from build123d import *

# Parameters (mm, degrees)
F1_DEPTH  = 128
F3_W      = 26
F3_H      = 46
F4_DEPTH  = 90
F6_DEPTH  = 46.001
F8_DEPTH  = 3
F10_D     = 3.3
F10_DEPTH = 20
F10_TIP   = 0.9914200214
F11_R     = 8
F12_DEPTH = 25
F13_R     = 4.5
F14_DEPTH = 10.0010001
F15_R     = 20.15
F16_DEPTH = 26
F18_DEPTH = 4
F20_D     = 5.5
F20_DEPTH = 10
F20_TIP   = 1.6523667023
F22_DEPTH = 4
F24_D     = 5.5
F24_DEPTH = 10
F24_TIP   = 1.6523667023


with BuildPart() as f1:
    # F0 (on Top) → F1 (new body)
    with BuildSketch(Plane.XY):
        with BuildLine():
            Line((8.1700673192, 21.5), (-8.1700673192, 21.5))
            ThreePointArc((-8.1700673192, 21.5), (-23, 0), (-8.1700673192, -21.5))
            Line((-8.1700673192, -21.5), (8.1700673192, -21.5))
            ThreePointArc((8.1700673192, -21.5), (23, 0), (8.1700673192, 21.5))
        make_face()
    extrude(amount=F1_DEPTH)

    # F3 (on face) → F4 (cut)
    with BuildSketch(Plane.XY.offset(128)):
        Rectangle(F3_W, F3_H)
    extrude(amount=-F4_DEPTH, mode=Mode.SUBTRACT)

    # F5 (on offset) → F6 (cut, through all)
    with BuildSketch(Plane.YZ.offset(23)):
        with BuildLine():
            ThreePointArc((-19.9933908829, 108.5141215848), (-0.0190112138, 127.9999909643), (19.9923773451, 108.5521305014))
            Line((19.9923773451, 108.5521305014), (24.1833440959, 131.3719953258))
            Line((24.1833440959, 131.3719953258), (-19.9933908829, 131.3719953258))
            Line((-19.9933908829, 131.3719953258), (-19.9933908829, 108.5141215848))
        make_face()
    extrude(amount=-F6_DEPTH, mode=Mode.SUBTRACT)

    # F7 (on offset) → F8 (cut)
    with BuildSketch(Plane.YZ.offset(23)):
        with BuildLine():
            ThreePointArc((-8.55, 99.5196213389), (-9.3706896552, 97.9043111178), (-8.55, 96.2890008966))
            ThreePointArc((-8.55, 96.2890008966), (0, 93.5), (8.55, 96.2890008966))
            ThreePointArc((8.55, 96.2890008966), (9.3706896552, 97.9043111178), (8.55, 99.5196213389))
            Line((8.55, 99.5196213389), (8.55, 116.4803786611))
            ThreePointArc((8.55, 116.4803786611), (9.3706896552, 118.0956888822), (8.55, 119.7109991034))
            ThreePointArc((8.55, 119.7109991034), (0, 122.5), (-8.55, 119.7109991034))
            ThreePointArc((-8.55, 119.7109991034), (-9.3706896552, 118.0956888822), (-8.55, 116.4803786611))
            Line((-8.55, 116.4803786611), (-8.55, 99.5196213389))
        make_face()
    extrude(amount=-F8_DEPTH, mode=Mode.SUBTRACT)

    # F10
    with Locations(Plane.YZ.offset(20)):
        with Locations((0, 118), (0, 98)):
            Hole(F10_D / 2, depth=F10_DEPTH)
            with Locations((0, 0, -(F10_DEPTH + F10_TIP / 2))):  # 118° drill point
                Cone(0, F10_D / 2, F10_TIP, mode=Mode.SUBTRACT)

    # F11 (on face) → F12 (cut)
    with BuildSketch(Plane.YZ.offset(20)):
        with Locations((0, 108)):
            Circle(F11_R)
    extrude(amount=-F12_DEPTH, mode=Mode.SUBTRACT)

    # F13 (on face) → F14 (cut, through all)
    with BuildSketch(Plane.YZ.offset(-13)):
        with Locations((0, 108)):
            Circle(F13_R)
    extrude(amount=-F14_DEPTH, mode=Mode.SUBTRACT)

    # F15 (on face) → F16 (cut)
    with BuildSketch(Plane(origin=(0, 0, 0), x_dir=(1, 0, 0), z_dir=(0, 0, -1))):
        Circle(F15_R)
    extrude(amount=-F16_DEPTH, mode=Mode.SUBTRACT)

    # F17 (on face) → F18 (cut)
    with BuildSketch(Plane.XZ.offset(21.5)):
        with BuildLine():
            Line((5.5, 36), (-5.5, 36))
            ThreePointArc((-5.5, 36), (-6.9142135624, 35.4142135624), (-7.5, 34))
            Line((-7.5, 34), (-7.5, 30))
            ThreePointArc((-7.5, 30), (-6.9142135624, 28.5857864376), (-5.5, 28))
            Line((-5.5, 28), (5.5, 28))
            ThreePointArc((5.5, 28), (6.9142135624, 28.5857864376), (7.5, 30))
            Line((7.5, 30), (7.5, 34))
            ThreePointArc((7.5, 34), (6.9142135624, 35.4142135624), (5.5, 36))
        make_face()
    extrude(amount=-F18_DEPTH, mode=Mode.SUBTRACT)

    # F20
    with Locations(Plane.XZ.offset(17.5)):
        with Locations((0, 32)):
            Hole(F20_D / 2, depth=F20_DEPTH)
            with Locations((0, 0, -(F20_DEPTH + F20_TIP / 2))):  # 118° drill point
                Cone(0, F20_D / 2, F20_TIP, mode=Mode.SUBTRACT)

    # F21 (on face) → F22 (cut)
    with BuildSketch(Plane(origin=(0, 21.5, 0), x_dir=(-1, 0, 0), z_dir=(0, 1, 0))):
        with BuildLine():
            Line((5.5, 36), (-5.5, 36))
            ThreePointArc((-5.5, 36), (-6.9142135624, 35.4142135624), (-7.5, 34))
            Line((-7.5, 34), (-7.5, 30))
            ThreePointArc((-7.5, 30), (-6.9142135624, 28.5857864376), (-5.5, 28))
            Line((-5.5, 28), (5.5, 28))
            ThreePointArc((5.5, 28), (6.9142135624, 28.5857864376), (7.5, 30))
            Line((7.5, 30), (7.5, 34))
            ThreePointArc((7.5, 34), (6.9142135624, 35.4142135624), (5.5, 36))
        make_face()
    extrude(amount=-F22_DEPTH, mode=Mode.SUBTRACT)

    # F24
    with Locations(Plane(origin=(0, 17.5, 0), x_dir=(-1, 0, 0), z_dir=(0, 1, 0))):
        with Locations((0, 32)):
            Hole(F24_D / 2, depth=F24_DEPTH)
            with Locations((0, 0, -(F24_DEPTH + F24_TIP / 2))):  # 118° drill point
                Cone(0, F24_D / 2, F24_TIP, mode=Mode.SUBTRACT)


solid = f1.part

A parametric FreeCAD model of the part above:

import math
import FreeCAD as App
import Part
import Sketcher
from FreeCAD import Vector

doc = App.newDocument("Part")
body = doc.addObject("PartDesign::Body", "Body")

# Sketch on XY plane
sketch1 = doc.addObject("Sketcher::SketchObject", "Sketch")
body.addObject(sketch1)
sketch1.AttachmentSupport = (doc.XY_Plane, [""])
sketch1.MapMode = "FlatFace"
sketch1.addGeometry([
    Part.LineSegment(Vector(8, 22, 0), Vector(-8, 22, 0)),
    Part.ArcOfCircle(Part.Circle(Vector(0, 0, 0), Vector(0, 0, 1), 23), math.radians(111), math.radians(249)),
    Part.LineSegment(Vector(-8, -22, 0), Vector(8, -22, 0)),
    Part.ArcOfCircle(Part.Circle(Vector(0, 0, 0), Vector(0, 0, 1), 23), math.radians(-69), math.radians(69)),
], False)
sketch1.addConstraint([
    Sketcher.Constraint("Coincident", 0, 2, 1, 1),
    Sketcher.Constraint("Coincident", 1, 2, 2, 1),
    Sketcher.Constraint("Coincident", 2, 2, 3, 1),
    Sketcher.Constraint("Coincident", 3, 2, 0, 1),
    Sketcher.Constraint("Horizontal", 0),
    Sketcher.Constraint("Horizontal", 2),
    Sketcher.Constraint("Coincident", 1, 3, -1, 1),
    Sketcher.Constraint("Coincident", 3, 3, -1, 1),
    Sketcher.Constraint("Equal", 1, 3),
    Sketcher.Constraint("Vertical", 0, 2, 1, 2),
    Sketcher.Constraint("Radius", 1, 23.0),
    Sketcher.Constraint("DistanceY", 1, 2, 0, 2, 43.0),
])
pad1 = doc.addObject("PartDesign::Pad", "Pad")
body.addObject(pad1)
pad1.Profile = sketch1
pad1.Length = 128

# Sketch on XY plane
sketch2 = doc.addObject("Sketcher::SketchObject", "Sketch001")
body.addObject(sketch2)
sketch2.AttachmentSupport = (doc.XY_Plane, [""])
sketch2.MapMode = "FlatFace"
sketch2.AttachmentOffset = App.Placement(Vector(0, 0, 128), App.Rotation())
sketch2.addGeometry([
    Part.LineSegment(Vector(-13, 23, 0), Vector(-13, -23, 0)),
    Part.LineSegment(Vector(-13, -23, 0), Vector(13, -23, 0)),
    Part.LineSegment(Vector(13, -23, 0), Vector(13, 23, 0)),
    Part.LineSegment(Vector(13, 23, 0), Vector(-13, 23, 0)),
], False)
sketch2.addConstraint([
    Sketcher.Constraint("Coincident", 0, 2, 1, 1),
    Sketcher.Constraint("Coincident", 1, 2, 2, 1),
    Sketcher.Constraint("Coincident", 2, 2, 3, 1),
    Sketcher.Constraint("Coincident", 3, 2, 0, 1),
    Sketcher.Constraint("Vertical", 0),
    Sketcher.Constraint("Horizontal", 1),
    Sketcher.Constraint("Vertical", 2),
    Sketcher.Constraint("Horizontal", 3),
    Sketcher.Constraint("Symmetric", 0, 2, 2, 2, -1, 1),
    Sketcher.Constraint("DistanceX", 1, 1, 1, 2, 26.0),
    Sketcher.Constraint("DistanceY", 0, 2, 0, 1, 46.0),
])
pocket1 = doc.addObject("PartDesign::Pocket", "Pocket")
body.addObject(pocket1)
pocket1.Profile = sketch2
pocket1.Length = 90

# Sketch on YZ plane
sketch3 = doc.addObject("Sketcher::SketchObject", "Sketch002")
body.addObject(sketch3)
sketch3.AttachmentSupport = (doc.YZ_Plane, [""])
sketch3.MapMode = "FlatFace"
sketch3.AttachmentOffset = App.Placement(Vector(0, 0, 23), App.Rotation())
sketch3.addGeometry([
    Part.ArcOfCircle(Part.Circle(Vector(0, 108, 0), Vector(0, 0, 1), 20), math.radians(2), math.radians(179)),
    Part.LineSegment(Vector(20, 109, 0), Vector(24, 131, 0)),
    Part.LineSegment(Vector(24, 131, 0), Vector(-20, 131, 0)),
    Part.LineSegment(Vector(-20, 131, 0), Vector(-20, 109, 0)),
], False)
sketch3.addConstraint([
    Sketcher.Constraint("Coincident", 0, 1, 1, 1),
    Sketcher.Constraint("Coincident", 1, 2, 2, 1),
    Sketcher.Constraint("Coincident", 2, 2, 3, 1),
    Sketcher.Constraint("Coincident", 3, 2, 0, 2),
    Sketcher.Constraint("Horizontal", 2),
    Sketcher.Constraint("Vertical", 3),
    Sketcher.Constraint("PointOnObject", 0, 3, -2),
    Sketcher.Constraint("Radius", 0, 20.0),
    Sketcher.Constraint("DistanceY", -1, 1, 0, 3, 108.0),
    Sketcher.Constraint("DistanceX", 2, 2, 2, 1, 44.176735),
    Sketcher.Constraint("DistanceY", 3, 2, 3, 1, 22.857874),
    Sketcher.Constraint("DistanceY", -1, 1, 0, 1, 108.552131),
    Sketcher.Constraint("DistanceX", 2, 2, -1, 1, 19.993391),
])
pocket2 = doc.addObject("PartDesign::Pocket", "Pocket001")
body.addObject(pocket2)
pocket2.Profile = sketch3
pocket2.Type = "ThroughAll"

# Sketch on YZ plane
sketch4 = doc.addObject("Sketcher::SketchObject", "Sketch003")
body.addObject(sketch4)
sketch4.AttachmentSupport = (doc.YZ_Plane, [""])
sketch4.MapMode = "FlatFace"
sketch4.AttachmentOffset = App.Placement(Vector(0, 0, 23), App.Rotation())
sketch4.addGeometry([
    Part.ArcOfCircle(Part.Circle(Vector(-7.4, 97.9, 0), Vector(0, 0, 1), 2), math.radians(126), math.radians(234)),  # 0
    Part.ArcOfCircle(Part.Circle(Vector(0, 108, 0), Vector(0, 0, 1), 14.5), math.radians(-126), math.radians(-54)),  # 1
    Part.ArcOfCircle(Part.Circle(Vector(7.4, 97.9, 0), Vector(0, 0, 1), 2), math.radians(-54), math.radians(54)),  # 2
    Part.LineSegment(Vector(8.6, 99.5, 0), Vector(8.6, 116.5, 0)),  # 3
    Part.ArcOfCircle(Part.Circle(Vector(7.4, 118.1, 0), Vector(0, 0, 1), 2), math.radians(-54), math.radians(54)),  # 4
    Part.ArcOfCircle(Part.Circle(Vector(0, 108, 0), Vector(0, 0, 1), 14.5), math.radians(54), math.radians(126)),  # 5
    Part.ArcOfCircle(Part.Circle(Vector(-7.4, 118.1, 0), Vector(0, 0, 1), 2), math.radians(126), math.radians(234)),  # 6
    Part.LineSegment(Vector(-8.6, 116.5, 0), Vector(-8.6, 99.5, 0)),  # 7
], False)
sketch4.addConstraint([
    Sketcher.Constraint("Tangent", 0, 2, 1, 1),
    Sketcher.Constraint("Tangent", 1, 2, 2, 1),
    Sketcher.Constraint("Coincident", 2, 2, 3, 1),
    Sketcher.Constraint("Coincident", 3, 2, 4, 1),
    Sketcher.Constraint("Tangent", 4, 2, 5, 1),
    Sketcher.Constraint("Tangent", 5, 2, 6, 1),
    Sketcher.Constraint("Coincident", 6, 2, 7, 1),
    Sketcher.Constraint("Coincident", 7, 2, 0, 1),
    Sketcher.Constraint("Vertical", 3),
    Sketcher.Constraint("Vertical", 7),
    Sketcher.Constraint("Coincident", 5, 3, 1, 3),
    Sketcher.Constraint("Equal", 0, 2),
    Sketcher.Constraint("Equal", 2, 4),
    Sketcher.Constraint("Equal", 1, 5),
    Sketcher.Constraint("Equal", 4, 6),
    Sketcher.Constraint("Symmetric", 0, 3, 2, 3, -2),
    Sketcher.Constraint("Symmetric", 3, 2, 6, 2, -2),
    Sketcher.Constraint("Vertical", 2, 3, 4, 3),
    Sketcher.Constraint("Vertical", 1, 2, 2, 2),
    Sketcher.Constraint("Radius", 0, 2.0),
    Sketcher.Constraint("Radius", 1, 14.5),
    Sketcher.Constraint("DistanceY", -1, 1, 1, 3, 108.0),
    Sketcher.Constraint("DistanceX", 0, 2, 1, 2, 17.1),
])
pocket3 = doc.addObject("PartDesign::Pocket", "Pocket002")
body.addObject(pocket3)
pocket3.Profile = sketch4
pocket3.Length = 3

# Sketch on YZ plane
sketch5 = doc.addObject("Sketcher::SketchObject", "Sketch004")
body.addObject(sketch5)
sketch5.AttachmentSupport = (doc.YZ_Plane, [""])
sketch5.MapMode = "FlatFace"
sketch5.AttachmentOffset = App.Placement(Vector(0, 0, 20), App.Rotation())
sketch5.addGeometry([
    Part.Circle(Vector(0, 118, 0), Vector(0, 0, 1), 1.6),
    Part.Circle(Vector(0, 98, 0), Vector(0, 0, 1), 1.6),
], False)
sketch5.addConstraint([
    Sketcher.Constraint("Equal", 0, 1),
    Sketcher.Constraint("PointOnObject", 0, 3, -2),
    Sketcher.Constraint("PointOnObject", 1, 3, -2),
    Sketcher.Constraint("Diameter", 0, 3.3),
    Sketcher.Constraint("DistanceY", -1, 1, 0, 3, 118.0),
    Sketcher.Constraint("DistanceY", -1, 1, 1, 3, 98.0),
])
doc.recompute()
hole = doc.addObject("PartDesign::Hole", "Hole")
body.addObject(hole)
hole.Profile = sketch5
hole.ThreadType = "None"
hole.Diameter = 3.3
hole.DepthType = "Dimension"
hole.Depth = 20
hole.DrillPoint = "Angled"
hole.DrillPointAngle = 118

# Sketch on YZ plane
sketch6 = doc.addObject("Sketcher::SketchObject", "Sketch005")
body.addObject(sketch6)
sketch6.AttachmentSupport = (doc.YZ_Plane, [""])
sketch6.MapMode = "FlatFace"
sketch6.AttachmentOffset = App.Placement(Vector(0, 0, 20), App.Rotation())
sketch6.addGeometry(Part.Circle(Vector(0, 108, 0), Vector(0, 0, 1), 8), False)
sketch6.addConstraint([
    Sketcher.Constraint("PointOnObject", 0, 3, -2),
    Sketcher.Constraint("Diameter", 0, 16.0),
    Sketcher.Constraint("DistanceY", -1, 1, 0, 3, 108.0),
])
pocket4 = doc.addObject("PartDesign::Pocket", "Pocket003")
body.addObject(pocket4)
pocket4.Profile = sketch6
pocket4.Length = 25

# Sketch on YZ plane
sketch7 = doc.addObject("Sketcher::SketchObject", "Sketch006")
body.addObject(sketch7)
sketch7.AttachmentSupport = (doc.YZ_Plane, [""])
sketch7.MapMode = "FlatFace"
sketch7.AttachmentOffset = App.Placement(Vector(0, 0, -13), App.Rotation())
sketch7.addGeometry(Part.Circle(Vector(0, 108, 0), Vector(0, 0, 1), 4.5), False)
sketch7.addConstraint([
    Sketcher.Constraint("PointOnObject", 0, 3, -2),
    Sketcher.Constraint("Diameter", 0, 9.0),
    Sketcher.Constraint("DistanceY", -1, 1, 0, 3, 108.0),
])
pocket5 = doc.addObject("PartDesign::Pocket", "Pocket004")
body.addObject(pocket5)
pocket5.Profile = sketch7
pocket5.Type = "ThroughAll"

# Sketch on XY plane
sketch8 = doc.addObject("Sketcher::SketchObject", "Sketch007")
body.addObject(sketch8)
sketch8.AttachmentSupport = (doc.XY_Plane, [""])
sketch8.MapMode = "FlatFace"
sketch8.addGeometry(Part.Circle(Vector(0, 0, 0), Vector(0, 0, 1), 20), False)
sketch8.addConstraint([
    Sketcher.Constraint("Coincident", 0, 3, -1, 1),
    Sketcher.Constraint("Diameter", 0, 40.3),
])
pocket6 = doc.addObject("PartDesign::Pocket", "Pocket005")
body.addObject(pocket6)
pocket6.Profile = sketch8
pocket6.Length = 26
pocket6.Reversed = True

# Sketch on XZ plane
sketch9 = doc.addObject("Sketcher::SketchObject", "Sketch008")
body.addObject(sketch9)
sketch9.AttachmentSupport = (doc.XZ_Plane, [""])
sketch9.MapMode = "FlatFace"
sketch9.AttachmentOffset = App.Placement(Vector(0, 0, 21.5), App.Rotation())
sketch9.addGeometry([
    Part.LineSegment(Vector(5.5, 36, 0), Vector(-5.5, 36, 0)),  # 0
    Part.ArcOfCircle(Part.Circle(Vector(-5.5, 34, 0), Vector(0, 0, 1), 2), math.radians(90), math.radians(180)),  # 1
    Part.LineSegment(Vector(-7.5, 34, 0), Vector(-7.5, 30, 0)),  # 2
    Part.ArcOfCircle(Part.Circle(Vector(-5.5, 30, 0), Vector(0, 0, 1), 2), math.radians(180), math.radians(270)),  # 3
    Part.LineSegment(Vector(-5.5, 28, 0), Vector(5.5, 28, 0)),  # 4
    Part.ArcOfCircle(Part.Circle(Vector(5.5, 30, 0), Vector(0, 0, 1), 2), math.radians(-90), math.radians(0)),  # 5
    Part.LineSegment(Vector(7.5, 30, 0), Vector(7.5, 34, 0)),  # 6
    Part.ArcOfCircle(Part.Circle(Vector(5.5, 34, 0), Vector(0, 0, 1), 2), math.radians(0), math.radians(90)),  # 7
], False)
sketch9.addConstraint([
    Sketcher.Constraint("Tangent", 0, 2, 1, 1),
    Sketcher.Constraint("Tangent", 1, 2, 2, 1),
    Sketcher.Constraint("Tangent", 2, 2, 3, 1),
    Sketcher.Constraint("Tangent", 3, 2, 4, 1),
    Sketcher.Constraint("Tangent", 4, 2, 5, 1),
    Sketcher.Constraint("Tangent", 5, 2, 6, 1),
    Sketcher.Constraint("Tangent", 6, 2, 7, 1),
    Sketcher.Constraint("Tangent", 7, 2, 0, 1),
    Sketcher.Constraint("Horizontal", 0),
    Sketcher.Constraint("Vertical", 2),
    Sketcher.Constraint("Horizontal", 4),
    Sketcher.Constraint("Vertical", 6),
    Sketcher.Constraint("Equal", 1, 3),
    Sketcher.Constraint("Equal", 3, 5),
    Sketcher.Constraint("Equal", 5, 7),
    Sketcher.Constraint("Radius", 1, 2.0),
    Sketcher.Constraint("DistanceX", 0, 2, 0, 1, 11.0),
    Sketcher.Constraint("DistanceY", 2, 2, 2, 1, 4.0),
    Sketcher.Constraint("DistanceY", -1, 1, 1, 3, 34.0),
    Sketcher.Constraint("DistanceX", 1, 3, -1, 1, 5.5),
])
pocket7 = doc.addObject("PartDesign::Pocket", "Pocket006")
body.addObject(pocket7)
pocket7.Profile = sketch9
pocket7.Length = 4

# Sketch on XZ plane
sketch10 = doc.addObject("Sketcher::SketchObject", "Sketch009")
body.addObject(sketch10)
sketch10.AttachmentSupport = (doc.XZ_Plane, [""])
sketch10.MapMode = "FlatFace"
sketch10.AttachmentOffset = App.Placement(Vector(0, 0, 17.5), App.Rotation())
sketch10.addGeometry(Part.Circle(Vector(0, 32, 0), Vector(0, 0, 1), 2.8), False)
sketch10.addConstraint([
    Sketcher.Constraint("PointOnObject", 0, 3, -2),
    Sketcher.Constraint("Diameter", 0, 5.5),
    Sketcher.Constraint("DistanceY", -1, 1, 0, 3, 32.0),
])
doc.recompute()
hole2 = doc.addObject("PartDesign::Hole", "Hole001")
body.addObject(hole2)
hole2.Profile = sketch10
hole2.ThreadType = "None"
hole2.Diameter = 5.5
hole2.DepthType = "Dimension"
hole2.Depth = 10
hole2.DrillPoint = "Angled"
hole2.DrillPointAngle = 118

# Sketch on XZ plane
sketch11 = doc.addObject("Sketcher::SketchObject", "Sketch010")
body.addObject(sketch11)
sketch11.AttachmentSupport = (doc.XZ_Plane, [""])
sketch11.MapMode = "FlatFace"
sketch11.AttachmentOffset = App.Placement(Vector(0, 0, -21.5), App.Rotation())
sketch11.addGeometry([
    Part.LineSegment(Vector(-5.5, 36, 0), Vector(5.5, 36, 0)),  # 0
    Part.ArcOfCircle(Part.Circle(Vector(5.5, 34, 0), Vector(0, 0, 1), 2), math.radians(0), math.radians(90)),  # 1
    Part.LineSegment(Vector(7.5, 34, 0), Vector(7.5, 30, 0)),  # 2
    Part.ArcOfCircle(Part.Circle(Vector(5.5, 30, 0), Vector(0, 0, 1), 2), math.radians(-90), math.radians(0)),  # 3
    Part.LineSegment(Vector(5.5, 28, 0), Vector(-5.5, 28, 0)),  # 4
    Part.ArcOfCircle(Part.Circle(Vector(-5.5, 30, 0), Vector(0, 0, 1), 2), math.radians(180), math.radians(270)),  # 5
    Part.LineSegment(Vector(-7.5, 30, 0), Vector(-7.5, 34, 0)),  # 6
    Part.ArcOfCircle(Part.Circle(Vector(-5.5, 34, 0), Vector(0, 0, 1), 2), math.radians(90), math.radians(180)),  # 7
], False)
sketch11.addConstraint([
    Sketcher.Constraint("Tangent", 0, 2, 1, 2),
    Sketcher.Constraint("Tangent", 1, 1, 2, 1),
    Sketcher.Constraint("Tangent", 2, 2, 3, 2),
    Sketcher.Constraint("Tangent", 3, 1, 4, 1),
    Sketcher.Constraint("Tangent", 4, 2, 5, 2),
    Sketcher.Constraint("Tangent", 5, 1, 6, 1),
    Sketcher.Constraint("Tangent", 6, 2, 7, 2),
    Sketcher.Constraint("Tangent", 7, 1, 0, 1),
    Sketcher.Constraint("Horizontal", 0),
    Sketcher.Constraint("Vertical", 2),
    Sketcher.Constraint("Horizontal", 4),
    Sketcher.Constraint("Vertical", 6),
    Sketcher.Constraint("Equal", 1, 3),
    Sketcher.Constraint("Equal", 3, 5),
    Sketcher.Constraint("Equal", 5, 7),
    Sketcher.Constraint("Radius", 1, 2.0),
    Sketcher.Constraint("DistanceX", 0, 1, 0, 2, 11.0),
    Sketcher.Constraint("DistanceY", 2, 2, 2, 1, 4.0),
    Sketcher.Constraint("DistanceY", -1, 1, 1, 3, 34.0),
    Sketcher.Constraint("DistanceX", -1, 1, 1, 3, 5.5),
])
pocket8 = doc.addObject("PartDesign::Pocket", "Pocket007")
body.addObject(pocket8)
pocket8.Profile = sketch11
pocket8.Length = 4
pocket8.Reversed = True

# Sketch on XZ plane
sketch12 = doc.addObject("Sketcher::SketchObject", "Sketch011")
body.addObject(sketch12)
sketch12.AttachmentSupport = (doc.XZ_Plane, [""])
sketch12.MapMode = "FlatFace"
sketch12.AttachmentOffset = App.Placement(Vector(0, 0, -17.5), App.Rotation())
sketch12.addGeometry(Part.Circle(Vector(0, 32, 0), Vector(0, 0, 1), 2.8), False)
sketch12.addConstraint([
    Sketcher.Constraint("PointOnObject", 0, 3, -2),
    Sketcher.Constraint("Diameter", 0, 5.5),
    Sketcher.Constraint("DistanceY", -1, 1, 0, 3, 32.0),
])
doc.recompute()
hole3 = doc.addObject("PartDesign::Hole", "Hole002")
body.addObject(hole3)
hole3.Profile = sketch12
hole3.ThreadType = "None"
hole3.Diameter = 5.5
hole3.DepthType = "Dimension"
hole3.Depth = 10
hole3.DrillPoint = "Angled"
hole3.DrillPointAngle = 118
hole3.Reversed = True

doc.recompute()
